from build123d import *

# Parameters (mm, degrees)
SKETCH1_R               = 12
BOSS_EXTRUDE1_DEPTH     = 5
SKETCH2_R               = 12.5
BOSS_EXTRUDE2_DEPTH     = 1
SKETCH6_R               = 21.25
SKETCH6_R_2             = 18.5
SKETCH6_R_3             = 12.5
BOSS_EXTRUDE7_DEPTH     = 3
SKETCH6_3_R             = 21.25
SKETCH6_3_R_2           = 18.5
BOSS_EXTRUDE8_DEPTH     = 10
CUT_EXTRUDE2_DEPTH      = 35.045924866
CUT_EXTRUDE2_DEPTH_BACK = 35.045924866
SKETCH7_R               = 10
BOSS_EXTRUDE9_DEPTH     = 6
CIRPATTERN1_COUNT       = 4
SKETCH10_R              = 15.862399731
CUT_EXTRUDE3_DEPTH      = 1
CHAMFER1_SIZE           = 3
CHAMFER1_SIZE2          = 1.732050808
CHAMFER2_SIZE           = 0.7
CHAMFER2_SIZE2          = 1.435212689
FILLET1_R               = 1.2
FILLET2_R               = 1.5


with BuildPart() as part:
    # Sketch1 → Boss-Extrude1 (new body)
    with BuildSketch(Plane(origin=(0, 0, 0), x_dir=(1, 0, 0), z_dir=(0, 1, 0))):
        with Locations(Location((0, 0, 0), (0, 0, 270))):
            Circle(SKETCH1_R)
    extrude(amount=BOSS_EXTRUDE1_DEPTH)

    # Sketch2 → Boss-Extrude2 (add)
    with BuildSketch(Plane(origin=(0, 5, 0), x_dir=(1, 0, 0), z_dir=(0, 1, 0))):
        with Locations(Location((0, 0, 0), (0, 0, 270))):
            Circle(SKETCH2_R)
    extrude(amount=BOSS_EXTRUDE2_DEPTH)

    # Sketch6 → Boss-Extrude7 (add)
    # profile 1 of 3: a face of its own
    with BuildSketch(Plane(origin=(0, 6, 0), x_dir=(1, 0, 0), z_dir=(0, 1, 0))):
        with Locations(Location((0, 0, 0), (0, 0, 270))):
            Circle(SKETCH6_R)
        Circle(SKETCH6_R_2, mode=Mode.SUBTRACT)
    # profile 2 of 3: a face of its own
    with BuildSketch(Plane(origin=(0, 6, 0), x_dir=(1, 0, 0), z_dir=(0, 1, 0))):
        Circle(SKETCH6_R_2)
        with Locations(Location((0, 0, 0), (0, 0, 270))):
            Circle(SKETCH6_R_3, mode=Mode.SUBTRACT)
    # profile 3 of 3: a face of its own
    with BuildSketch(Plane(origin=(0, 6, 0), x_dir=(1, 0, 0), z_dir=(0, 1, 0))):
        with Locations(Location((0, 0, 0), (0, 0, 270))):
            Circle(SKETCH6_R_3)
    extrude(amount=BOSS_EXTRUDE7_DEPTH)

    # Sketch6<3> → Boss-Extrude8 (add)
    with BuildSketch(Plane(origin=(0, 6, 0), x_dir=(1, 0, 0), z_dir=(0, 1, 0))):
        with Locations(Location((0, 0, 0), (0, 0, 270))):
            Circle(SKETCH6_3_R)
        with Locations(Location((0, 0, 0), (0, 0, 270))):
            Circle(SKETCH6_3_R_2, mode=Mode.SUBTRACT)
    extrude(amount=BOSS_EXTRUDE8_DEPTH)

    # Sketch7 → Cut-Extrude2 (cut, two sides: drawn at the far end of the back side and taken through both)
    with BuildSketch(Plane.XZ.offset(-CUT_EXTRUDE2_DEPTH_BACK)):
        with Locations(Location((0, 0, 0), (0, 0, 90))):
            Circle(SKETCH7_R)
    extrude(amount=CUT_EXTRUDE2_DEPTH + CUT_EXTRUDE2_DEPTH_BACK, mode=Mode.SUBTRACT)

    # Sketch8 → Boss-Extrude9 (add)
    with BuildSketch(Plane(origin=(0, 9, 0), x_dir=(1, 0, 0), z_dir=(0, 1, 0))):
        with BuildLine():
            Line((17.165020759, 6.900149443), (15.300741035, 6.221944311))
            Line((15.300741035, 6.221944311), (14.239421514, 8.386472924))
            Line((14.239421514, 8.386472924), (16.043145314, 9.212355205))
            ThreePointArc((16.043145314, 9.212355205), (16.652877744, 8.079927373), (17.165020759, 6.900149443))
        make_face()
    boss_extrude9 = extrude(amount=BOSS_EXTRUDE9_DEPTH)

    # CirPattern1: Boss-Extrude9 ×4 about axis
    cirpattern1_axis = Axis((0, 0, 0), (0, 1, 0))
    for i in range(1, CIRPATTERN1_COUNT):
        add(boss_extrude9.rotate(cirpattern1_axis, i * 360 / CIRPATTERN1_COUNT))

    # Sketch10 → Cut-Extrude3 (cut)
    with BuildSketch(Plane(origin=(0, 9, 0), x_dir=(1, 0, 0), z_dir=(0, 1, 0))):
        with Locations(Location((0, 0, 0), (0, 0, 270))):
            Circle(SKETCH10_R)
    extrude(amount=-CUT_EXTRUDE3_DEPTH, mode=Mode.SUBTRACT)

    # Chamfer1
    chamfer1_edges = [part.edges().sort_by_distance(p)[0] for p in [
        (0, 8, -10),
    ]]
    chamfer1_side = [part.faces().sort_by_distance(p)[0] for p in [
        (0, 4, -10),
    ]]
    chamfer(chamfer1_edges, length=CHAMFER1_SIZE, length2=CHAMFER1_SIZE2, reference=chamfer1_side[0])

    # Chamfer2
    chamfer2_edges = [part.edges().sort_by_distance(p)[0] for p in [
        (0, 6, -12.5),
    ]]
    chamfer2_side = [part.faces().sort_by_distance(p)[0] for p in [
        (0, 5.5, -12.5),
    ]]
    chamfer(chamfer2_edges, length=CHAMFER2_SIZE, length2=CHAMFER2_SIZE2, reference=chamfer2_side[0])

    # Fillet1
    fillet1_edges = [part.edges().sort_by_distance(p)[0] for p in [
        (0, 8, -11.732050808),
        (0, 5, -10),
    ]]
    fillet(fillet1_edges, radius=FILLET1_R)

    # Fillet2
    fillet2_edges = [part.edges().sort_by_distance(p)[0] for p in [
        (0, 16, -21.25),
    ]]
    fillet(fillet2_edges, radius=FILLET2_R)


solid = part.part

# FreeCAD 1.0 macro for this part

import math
import FreeCAD as App
import Part
import Sketcher
from FreeCAD import Vector


def edges_at(feature, points):
    """Names of the edges that pass closest to the given points."""
    edges = feature.Shape.Edges
    near = lambda p: min(range(len(edges)), key=lambda i: edges[i].distToShape(Part.Vertex(*p))[0])
    return sorted({f"Edge{near(p) + 1}" for p in points})

doc = App.newDocument("Part")
body = doc.addObject("PartDesign::Body", "Body")

# Sketch on XZ plane
sketch1 = body.newObject("Sketcher::SketchObject", "Sketch")
sketch1.AttachmentSupport = (doc.getObject("XZ_Plane"), [""])
sketch1.MapMode = "FlatFace"
sketch1.addGeometry(Part.Circle(Vector(0, 0, 0), Vector(0, 0, 1), 12), False)
sketch1.addConstraint([
    Sketcher.Constraint("Coincident", 0, 3, -1, 1),
    Sketcher.Constraint("Diameter", 0, 24.0),
])
pad1 = body.newObject("PartDesign::Pad", "Pad")
pad1.Profile = sketch1
pad1.Length = 5
pad1.Reversed = True

# Sketch on XZ plane
sketch2 = body.newObject("Sketcher::SketchObject", "Sketch001")
sketch2.AttachmentSupport = (doc.getObject("XZ_Plane"), [""])
sketch2.MapMode = "FlatFace"
sketch2.AttachmentOffset = App.Placement(Vector(0, 0, -5), App.Rotation())
sketch2.addGeometry(Part.Circle(Vector(0, 0, 0), Vector(0, 0, 1), 12), False)
sketch2.addConstraint([
    Sketcher.Constraint("Coincident", 0, 3, -1, 1),
    Sketcher.Constraint("Diameter", 0, 25.0),
])
pad2 = body.newObject("PartDesign::Pad", "Pad001")
pad2.Profile = sketch2
pad2.Length = 1
pad2.Reversed = True

# Sketch on XZ plane
sketch3 = body.newObject("Sketcher::SketchObject", "Sketch002")
sketch3.AttachmentSupport = (doc.getObject("XZ_Plane"), [""])
sketch3.MapMode = "FlatFace"
sketch3.AttachmentOffset = App.Placement(Vector(0, 0, -6), App.Rotation())
sketch3.addGeometry(Part.Circle(Vector(0, 0, 0), Vector(0, 0, 1), 21), False)
sketch3.addConstraint([
    Sketcher.Constraint("Coincident", 0, 3, -1, 1),
    Sketcher.Constraint("Diameter", 0, 42.5),
])
pad3 = body.newObject("PartDesign::Pad", "Pad002")
pad3.Profile = sketch3
pad3.Length = 3
pad3.Reversed = True

# Sketch on XZ plane
sketch4 = body.newObject("Sketcher::SketchObject", "Sketch003")
sketch4.AttachmentSupport = (doc.getObject("XZ_Plane"), [""])
sketch4.MapMode = "FlatFace"
sketch4.AttachmentOffset = App.Placement(Vector(0, 0, -6), App.Rotation())
sketch4.addGeometry([
    Part.Circle(Vector(0, 0, 0), Vector(0, 0, 1), 21),
    Part.Circle(Vector(0, 0, 0), Vector(0, 0, 1), 18),
], False)
sketch4.addConstraint([
    Sketcher.Constraint("Coincident", 0, 3, -1, 1),
    Sketcher.Constraint("Coincident", 1, 3, -1, 1),
    Sketcher.Constraint("Diameter", 1, 37.0),
    Sketcher.Constraint("Diameter", 0, 42.5),
])
pad4 = body.newObject("PartDesign::Pad", "Pad003")
pad4.Profile = sketch4
pad4.Length = 10
pad4.Reversed = True

# Sketch on XZ plane
sketch5 = body.newObject("Sketcher::SketchObject", "Sketch004")
sketch5.AttachmentSupport = (doc.getObject("XZ_Plane"), [""])
sketch5.MapMode = "FlatFace"
sketch5.addGeometry(Part.Circle(Vector(0, 0, 0), Vector(0, 0, 1), 10), False)
sketch5.addConstraint([
    Sketcher.Constraint("Coincident", 0, 3, -1, 1),
    Sketcher.Constraint("Diameter", 0, 20.0),
])
pocket1 = body.newObject("PartDesign::Pocket", "Pocket")
pocket1.Profile = sketch5
pocket1.Type = "ThroughAll"
pocket1.Midplane = True

# Sketch on XZ plane
sketch6 = body.newObject("Sketcher::SketchObject", "Sketch005")
sketch6.AttachmentSupport = (doc.getObject("XZ_Plane"), [""])
sketch6.MapMode = "FlatFace"
sketch6.AttachmentOffset = App.Placement(Vector(0, 0, -9), App.Rotation())
sketch6.addGeometry([
    Part.LineSegment(Vector(15.3, -6.2, 0), Vector(17.2, -6.9, 0)),
    Part.ArcOfCircle(Part.Circle(Vector(2.9, -1.4, 0), Vector(0, 0, 1), 15.2), math.radians(-30.72), math.radians(-21.05)),
    Part.LineSegment(Vector(16, -9.2, 0), Vector(14.2, -8.4, 0)),
    Part.LineSegment(Vector(14.2, -8.4, 0), Vector(15.3, -6.2, 0)),
], False)
sketch6.addConstraint([
    Sketcher.Constraint("Coincident", 0, 2, 1, 2),
    Sketcher.Constraint("Coincident", 1, 1, 2, 1),
    Sketcher.Constraint("Coincident", 2, 2, 3, 1),
    Sketcher.Constraint("Coincident", 3, 2, 0, 1),
    Sketcher.Constraint("Equal", 0, 2),
    Sketcher.Constraint("Radius", 1, 15.25),
    Sketcher.Constraint("DistanceX", 2, 2, 0, 2, 2.925599),
    Sketcher.Constraint("Distance", 0, 1.98381),
    Sketcher.Constraint("DistanceX", -1, 1, 1, 3, 2.932591),
    Sketcher.Constraint("DistanceX", -1, 1, 0, 2, 17.165021),
    Sketcher.Constraint("DistanceY", 0, 2, -1, 1, 6.900149),
    Sketcher.Constraint("DistanceX", -1, 1, 3, 2, 15.300741),
    Sketcher.Constraint("DistanceY", 1, 1, 1, 3, 7.789471),
])
pad5 = body.newObject("PartDesign::Pad", "Pad004")
pad5.Profile = sketch6
pad5.Length = 6
pad5.Reversed = True
doc.recompute()

polarpattern = body.newObject("PartDesign::PolarPattern", "PolarPattern")
polarpattern.Originals = [pad5]
polarpattern.Axis = (doc.getObject("Y_Axis"), [""])
polarpattern.Angle = 360
polarpattern.Occurrences = 4
body.Tip = polarpattern

# Sketch on XZ plane
sketch7 = body.newObject("Sketcher::SketchObject", "Sketch006")
sketch7.AttachmentSupport = (doc.getObject("XZ_Plane"), [""])
sketch7.MapMode = "FlatFace"
sketch7.AttachmentOffset = App.Placement(Vector(0, 0, -9), App.Rotation())
sketch7.addGeometry(Part.Circle(Vector(0, 0, 0), Vector(0, 0, 1), 16), False)
sketch7.addConstraint([
    Sketcher.Constraint("Coincident", 0, 3, -1, 1),
    Sketcher.Constraint("Diameter", 0, 31.724799),
])
pocket2 = body.newObject("PartDesign::Pocket", "Pocket001")
pocket2.Profile = sketch7
pocket2.Length = 1
pocket2.Reversed = True
doc.recompute()

chamfer = body.newObject("PartDesign::Chamfer", "Chamfer")
chamfer.Base = (pocket2, edges_at(pocket2, [(0, 8, -10)]))
chamfer.ChamferType = "Two distances"
chamfer.Size = 3
chamfer.Size2 = 1.732051
doc.recompute()

chamfer2 = body.newObject("PartDesign::Chamfer", "Chamfer001")
chamfer2.Base = (chamfer, edges_at(chamfer, [(0, 6, -12.5)]))
chamfer2.ChamferType = "Two distances"
chamfer2.Size = 0.7
chamfer2.Size2 = 1.435213
doc.recompute()

fillet = body.newObject("PartDesign::Fillet", "Fillet")
fillet.Base = (chamfer2, edges_at(chamfer2, [(0, 8, -11.732), (0, 5, -10)]))
fillet.Radius = 1.2
doc.recompute()

fillet2 = body.newObject("PartDesign::Fillet", "Fillet001")
fillet2.Base = (fillet, edges_at(fillet, [(0, 16, -21.25)]))
fillet2.Radius = 1.5

doc.recompute()
